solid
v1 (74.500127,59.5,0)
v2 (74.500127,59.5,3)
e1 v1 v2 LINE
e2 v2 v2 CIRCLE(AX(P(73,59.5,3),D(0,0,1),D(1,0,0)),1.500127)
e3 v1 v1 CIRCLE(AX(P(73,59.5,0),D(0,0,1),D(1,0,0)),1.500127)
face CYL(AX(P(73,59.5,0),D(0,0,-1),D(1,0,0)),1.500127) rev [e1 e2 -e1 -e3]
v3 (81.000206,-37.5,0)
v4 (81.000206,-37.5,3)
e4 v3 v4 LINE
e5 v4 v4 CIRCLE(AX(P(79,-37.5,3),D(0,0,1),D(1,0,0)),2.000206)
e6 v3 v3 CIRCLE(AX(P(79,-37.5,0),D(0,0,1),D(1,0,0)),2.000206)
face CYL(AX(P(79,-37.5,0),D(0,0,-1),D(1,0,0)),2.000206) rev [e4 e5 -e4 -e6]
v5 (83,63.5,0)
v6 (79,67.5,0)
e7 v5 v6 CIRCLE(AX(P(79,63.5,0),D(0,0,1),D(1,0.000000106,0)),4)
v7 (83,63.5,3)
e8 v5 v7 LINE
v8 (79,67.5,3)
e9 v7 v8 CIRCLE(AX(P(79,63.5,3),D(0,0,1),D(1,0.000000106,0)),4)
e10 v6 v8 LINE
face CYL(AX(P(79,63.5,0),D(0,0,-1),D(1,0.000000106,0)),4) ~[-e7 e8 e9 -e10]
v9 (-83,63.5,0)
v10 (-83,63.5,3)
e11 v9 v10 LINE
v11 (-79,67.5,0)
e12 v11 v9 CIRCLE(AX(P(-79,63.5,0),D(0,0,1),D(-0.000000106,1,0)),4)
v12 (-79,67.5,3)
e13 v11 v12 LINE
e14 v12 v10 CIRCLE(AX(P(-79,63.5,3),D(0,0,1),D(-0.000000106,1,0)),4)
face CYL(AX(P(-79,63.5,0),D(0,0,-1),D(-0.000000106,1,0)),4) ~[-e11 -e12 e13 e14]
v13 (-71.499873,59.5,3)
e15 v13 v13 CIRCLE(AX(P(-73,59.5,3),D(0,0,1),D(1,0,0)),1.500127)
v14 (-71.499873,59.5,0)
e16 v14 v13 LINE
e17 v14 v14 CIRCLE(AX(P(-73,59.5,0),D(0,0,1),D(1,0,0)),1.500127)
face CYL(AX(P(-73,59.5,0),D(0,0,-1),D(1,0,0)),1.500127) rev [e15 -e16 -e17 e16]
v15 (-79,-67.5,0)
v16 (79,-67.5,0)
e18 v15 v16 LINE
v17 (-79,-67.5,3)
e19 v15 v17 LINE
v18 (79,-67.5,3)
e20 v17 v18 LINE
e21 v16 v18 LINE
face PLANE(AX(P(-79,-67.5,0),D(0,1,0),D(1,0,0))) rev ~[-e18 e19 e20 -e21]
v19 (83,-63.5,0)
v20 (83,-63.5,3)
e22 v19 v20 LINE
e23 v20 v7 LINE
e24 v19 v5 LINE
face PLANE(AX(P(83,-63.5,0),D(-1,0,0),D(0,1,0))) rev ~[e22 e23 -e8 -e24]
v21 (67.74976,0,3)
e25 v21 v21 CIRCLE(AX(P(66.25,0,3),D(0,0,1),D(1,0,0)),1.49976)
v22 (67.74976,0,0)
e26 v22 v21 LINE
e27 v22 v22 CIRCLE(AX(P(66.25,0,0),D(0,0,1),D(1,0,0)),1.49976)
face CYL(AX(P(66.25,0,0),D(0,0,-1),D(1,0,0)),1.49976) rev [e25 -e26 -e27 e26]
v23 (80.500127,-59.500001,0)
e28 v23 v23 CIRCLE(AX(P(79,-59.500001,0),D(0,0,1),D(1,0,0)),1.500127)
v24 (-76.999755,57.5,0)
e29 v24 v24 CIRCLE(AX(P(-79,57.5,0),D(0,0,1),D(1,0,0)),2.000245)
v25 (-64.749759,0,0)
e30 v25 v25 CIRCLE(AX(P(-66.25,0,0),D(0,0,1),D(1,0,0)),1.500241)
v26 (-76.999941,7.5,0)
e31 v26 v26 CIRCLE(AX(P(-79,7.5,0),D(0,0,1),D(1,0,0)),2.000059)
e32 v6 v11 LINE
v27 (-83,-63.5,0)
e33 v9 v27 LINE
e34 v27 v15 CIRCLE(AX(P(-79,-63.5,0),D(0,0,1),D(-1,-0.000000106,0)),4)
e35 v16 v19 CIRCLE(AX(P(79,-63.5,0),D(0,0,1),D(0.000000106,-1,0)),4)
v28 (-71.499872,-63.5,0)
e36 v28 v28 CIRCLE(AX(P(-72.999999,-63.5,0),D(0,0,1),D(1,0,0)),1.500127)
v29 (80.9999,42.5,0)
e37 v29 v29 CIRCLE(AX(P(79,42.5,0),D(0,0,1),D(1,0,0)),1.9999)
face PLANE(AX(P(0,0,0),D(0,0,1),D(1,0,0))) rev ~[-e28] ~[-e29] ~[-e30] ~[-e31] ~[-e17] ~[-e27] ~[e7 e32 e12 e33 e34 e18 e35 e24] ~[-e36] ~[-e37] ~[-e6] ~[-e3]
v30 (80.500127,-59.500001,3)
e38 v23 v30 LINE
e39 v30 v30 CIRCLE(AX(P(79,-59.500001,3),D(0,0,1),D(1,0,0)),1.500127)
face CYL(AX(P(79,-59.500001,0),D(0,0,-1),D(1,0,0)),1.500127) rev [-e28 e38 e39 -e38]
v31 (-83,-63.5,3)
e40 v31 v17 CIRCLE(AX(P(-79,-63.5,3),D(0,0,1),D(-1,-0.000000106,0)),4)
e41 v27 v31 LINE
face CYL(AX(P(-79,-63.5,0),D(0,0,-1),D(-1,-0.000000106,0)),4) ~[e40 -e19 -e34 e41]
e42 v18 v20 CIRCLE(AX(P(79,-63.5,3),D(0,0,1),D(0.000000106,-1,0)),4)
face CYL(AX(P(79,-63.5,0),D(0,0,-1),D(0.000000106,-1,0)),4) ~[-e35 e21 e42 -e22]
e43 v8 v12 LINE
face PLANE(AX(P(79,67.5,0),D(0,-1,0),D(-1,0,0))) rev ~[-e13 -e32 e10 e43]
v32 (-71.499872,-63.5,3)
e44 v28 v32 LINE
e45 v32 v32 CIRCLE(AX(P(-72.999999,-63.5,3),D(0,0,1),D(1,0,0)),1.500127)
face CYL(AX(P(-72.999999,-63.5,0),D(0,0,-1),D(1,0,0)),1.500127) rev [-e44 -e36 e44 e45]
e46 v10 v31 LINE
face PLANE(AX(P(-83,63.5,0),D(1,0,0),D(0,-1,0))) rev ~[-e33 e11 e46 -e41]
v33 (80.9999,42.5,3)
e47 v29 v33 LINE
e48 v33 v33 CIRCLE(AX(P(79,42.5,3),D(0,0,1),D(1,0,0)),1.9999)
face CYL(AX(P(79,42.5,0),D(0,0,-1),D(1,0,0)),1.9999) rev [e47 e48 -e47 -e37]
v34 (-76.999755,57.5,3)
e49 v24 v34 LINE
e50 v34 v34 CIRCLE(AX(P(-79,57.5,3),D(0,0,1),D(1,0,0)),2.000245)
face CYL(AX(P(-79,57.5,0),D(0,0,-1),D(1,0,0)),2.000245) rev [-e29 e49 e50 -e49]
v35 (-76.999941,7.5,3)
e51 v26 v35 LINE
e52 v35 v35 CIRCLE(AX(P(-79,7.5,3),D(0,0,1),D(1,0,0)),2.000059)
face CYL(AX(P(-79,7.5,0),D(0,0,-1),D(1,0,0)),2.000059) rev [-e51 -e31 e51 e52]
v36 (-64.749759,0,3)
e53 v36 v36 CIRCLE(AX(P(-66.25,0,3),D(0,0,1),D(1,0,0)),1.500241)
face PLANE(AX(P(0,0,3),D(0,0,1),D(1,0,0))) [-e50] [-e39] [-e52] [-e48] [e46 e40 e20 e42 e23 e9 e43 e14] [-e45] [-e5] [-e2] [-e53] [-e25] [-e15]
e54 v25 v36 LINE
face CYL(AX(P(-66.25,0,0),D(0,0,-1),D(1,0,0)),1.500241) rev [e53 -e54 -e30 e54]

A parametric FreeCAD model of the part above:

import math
import FreeCAD as App
import Part
import Sketcher
Q = App.Units.Quantity

doc = App.newDocument("Part")
body = doc.addObject("PartDesign::Body", "Body")

# Sketch on XY plane
sketch1 = body.newObject("Sketcher::SketchObject", "Sketch")
sketch1.AttachmentSupport = (doc.getObject("XY_Plane"), [""])
sketch1.MapMode = "FlatFace"
sketch1.addGeometry(Part.ArcOfCircle(Part.Circle(App.Vector(79, 63.5, 0), App.Vector(0, 0, 1), 4), math.radians(0), math.radians(90)), False)
sketch1.addGeometry(Part.LineSegment(App.Vector(79, 67.5, 0), App.Vector(-79, 67.5, 0)), False)
sketch1.addGeometry(Part.ArcOfCircle(Part.Circle(App.Vector(-79, 63.5, 0), App.Vector(0, 0, 1), 4), math.radians(90), math.radians(180)), False)
sketch1.addGeometry(Part.LineSegment(App.Vector(-83, 63.5, 0), App.Vector(-83, -63.5, 0)), False)
sketch1.addGeometry(Part.ArcOfCircle(Part.Circle(App.Vector(-79, -63.5, 0), App.Vector(0, 0, 1), 4), math.radians(-180), math.radians(-90)), False)
sketch1.addGeometry(Part.LineSegment(App.Vector(-79, -67.5, 0), App.Vector(79, -67.5, 0)), False)
sketch1.addGeometry(Part.ArcOfCircle(Part.Circle(App.Vector(79, -63.5, 0), App.Vector(0, 0, 1), 4), math.radians(-90), math.radians(0)), False)
sketch1.addGeometry(Part.LineSegment(App.Vector(83, -63.5, 0), App.Vector(83, 63.5, 0)), False)
sketch1.addGeometry(Part.Circle(App.Vector(-73, -63.5, 0), App.Vector(0, 0, 1), 1.5), False)
sketch1.addGeometry(Part.Circle(App.Vector(79, -59.5, 0), App.Vector(0, 0, 1), 1.5), False)
sketch1.addGeometry(Part.Circle(App.Vector(79, -37.5, 0), App.Vector(0, 0, 1), 2), False)
sketch1.addGeometry(Part.Circle(App.Vector(-66.2, 0, 0), App.Vector(0, 0, 1), 1.5), False)
sketch1.addGeometry(Part.Circle(App.Vector(-79, 7.5, 0), App.Vector(0, 0, 1), 2), False)
sketch1.addGeometry(Part.Circle(App.Vector(-79, 57.5, 0), App.Vector(0, 0, 1), 2), False)
sketch1.addGeometry(Part.Circle(App.Vector(-73, 59.5, 0), App.Vector(0, 0, 1), 1.5), False)
sketch1.addGeometry(Part.Circle(App.Vector(66.2, 0, 0), App.Vector(0, 0, 1), 1.5), False)
sketch1.addGeometry(Part.Circle(App.Vector(79, 42.5, 0), App.Vector(0, 0, 1), 2), False)
sketch1.addGeometry(Part.Circle(App.Vector(73, 59.5, 0), App.Vector(0, 0, 1), 1.5), False)
sketch1.addConstraint(Sketcher.Constraint("Tangent", 0, 2, 1, 1))
sketch1.addConstraint(Sketcher.Constraint("Tangent", 1, 2, 2, 1))
sketch1.addConstraint(Sketcher.Constraint("Tangent", 2, 2, 3, 1))
sketch1.addConstraint(Sketcher.Constraint("Tangent", 3, 2, 4, 1))
sketch1.addConstraint(Sketcher.Constraint("Tangent", 4, 2, 5, 1))
sketch1.addConstraint(Sketcher.Constraint("Tangent", 5, 2, 6, 1))
sketch1.addConstraint(Sketcher.Constraint("Tangent", 6, 2, 7, 1))
sketch1.addConstraint(Sketcher.Constraint("Tangent", 7, 2, 0, 1))
sketch1.addConstraint(Sketcher.Constraint("Horizontal", 1))
sketch1.addConstraint(Sketcher.Constraint("Vertical", 3))
sketch1.addConstraint(Sketcher.Constraint("Horizontal", 5))
sketch1.addConstraint(Sketcher.Constraint("Vertical", 7))
sketch1.addConstraint(Sketcher.Constraint("Equal", 0, 2))
sketch1.addConstraint(Sketcher.Constraint("Equal", 2, 4))
sketch1.addConstraint(Sketcher.Constraint("Equal", 4, 6))
sketch1.addConstraint(Sketcher.Constraint("Equal", 8, 9))
sketch1.addConstraint(Sketcher.Constraint("Equal", 9, 14))
sketch1.addConstraint(Sketcher.Constraint("Equal", 14, 17))
sketch1.addConstraint(Sketcher.Constraint("Symmetric", 0, 3, 4, 3, -1, 1))
sketch1.addConstraint(Sketcher.Constraint("Symmetric", 11, 3, 15, 3, -1, 1))
sketch1.addConstraint(Sketcher.Constraint("Symmetric", 14, 3, 17, 3, -2))
sketch1.addConstraint(Sketcher.Constraint("PointOnObject", 11, 3, -1))
sketch1.addConstraint(Sketcher.Constraint("Horizontal", 6, 3, 8, 3))
sketch1.addConstraint(Sketcher.Constraint("Vertical", 6, 3, 9, 3))
sketch1.addConstraint(Sketcher.Constraint("Vertical", 9, 3, 10, 3))
sketch1.addConstraint(Sketcher.Constraint("Vertical", 4, 3, 12, 3))
sketch1.addConstraint(Sketcher.Constraint("Vertical", 12, 3, 13, 3))
sketch1.addConstraint(Sketcher.Constraint("Vertical", 8, 3, 14, 3))
sketch1.addConstraint(Sketcher.Constraint("Vertical", 10, 3, 16, 3))
sketch1.addConstraint(Sketcher.Constraint("Radius", 0, Q("4 mm")))
sketch1.addConstraint(Sketcher.Constraint("DistanceX", 1, 2, 1, 1, Q("158 mm")))
sketch1.addConstraint(Sketcher.Constraint("DistanceY", 3, 2, 3, 1, Q("127 mm")))
sketch1.addConstraint(Sketcher.Constraint("DistanceX", 8, 3, -1, 1, Q("72.999999 mm")))
sketch1.addConstraint(Sketcher.Constraint("DistanceY", 6, 3, 9, 3, Q("3.999999 mm")))
sketch1.addConstraint(Sketcher.Constraint("DistanceY", 9, 3, 10, 3, Q("22.000001 mm")))
sketch1.addConstraint(Sketcher.Constraint("DistanceY", 12, 3, 2, 3, Q("56 mm")))
sketch1.addConstraint(Sketcher.Constraint("DistanceY", 13, 3, 2, 3, Q("6 mm")))
sketch1.addConstraint(Sketcher.Constraint("DistanceY", 13, 3, 14, 3, Q("2 mm")))
sketch1.addConstraint(Sketcher.Constraint("DistanceY", 16, 3, 0, 3, Q("21 mm")))
sketch1.addConstraint(Sketcher.Constraint("Diameter", 16, Q("3.9998 mm")))
sketch1.addConstraint(Sketcher.Constraint("DistanceX", 11, 3, 15, 3, Q("132.5 mm")))
sketch1.addConstraint(Sketcher.Constraint("Diameter", 11, Q("3.000482 mm")))
sketch1.addConstraint(Sketcher.Constraint("Diameter", 13, Q("4.00049 mm")))
sketch1.addConstraint(Sketcher.Constraint("Diameter", 15, Q("2.99952 mm")))
sketch1.addConstraint(Sketcher.Constraint("Diameter", 8, Q("3.000254 mm")))
sketch1.addConstraint(Sketcher.Constraint("Diameter", 10, Q("4.000412 mm")))
sketch1.addConstraint(Sketcher.Constraint("Diameter", 12, Q("4.000118 mm")))
pad1 = body.newObject("PartDesign::Pad", "Pad")
pad1.Profile = sketch1
pad1.Length = 3

doc.recompute()
